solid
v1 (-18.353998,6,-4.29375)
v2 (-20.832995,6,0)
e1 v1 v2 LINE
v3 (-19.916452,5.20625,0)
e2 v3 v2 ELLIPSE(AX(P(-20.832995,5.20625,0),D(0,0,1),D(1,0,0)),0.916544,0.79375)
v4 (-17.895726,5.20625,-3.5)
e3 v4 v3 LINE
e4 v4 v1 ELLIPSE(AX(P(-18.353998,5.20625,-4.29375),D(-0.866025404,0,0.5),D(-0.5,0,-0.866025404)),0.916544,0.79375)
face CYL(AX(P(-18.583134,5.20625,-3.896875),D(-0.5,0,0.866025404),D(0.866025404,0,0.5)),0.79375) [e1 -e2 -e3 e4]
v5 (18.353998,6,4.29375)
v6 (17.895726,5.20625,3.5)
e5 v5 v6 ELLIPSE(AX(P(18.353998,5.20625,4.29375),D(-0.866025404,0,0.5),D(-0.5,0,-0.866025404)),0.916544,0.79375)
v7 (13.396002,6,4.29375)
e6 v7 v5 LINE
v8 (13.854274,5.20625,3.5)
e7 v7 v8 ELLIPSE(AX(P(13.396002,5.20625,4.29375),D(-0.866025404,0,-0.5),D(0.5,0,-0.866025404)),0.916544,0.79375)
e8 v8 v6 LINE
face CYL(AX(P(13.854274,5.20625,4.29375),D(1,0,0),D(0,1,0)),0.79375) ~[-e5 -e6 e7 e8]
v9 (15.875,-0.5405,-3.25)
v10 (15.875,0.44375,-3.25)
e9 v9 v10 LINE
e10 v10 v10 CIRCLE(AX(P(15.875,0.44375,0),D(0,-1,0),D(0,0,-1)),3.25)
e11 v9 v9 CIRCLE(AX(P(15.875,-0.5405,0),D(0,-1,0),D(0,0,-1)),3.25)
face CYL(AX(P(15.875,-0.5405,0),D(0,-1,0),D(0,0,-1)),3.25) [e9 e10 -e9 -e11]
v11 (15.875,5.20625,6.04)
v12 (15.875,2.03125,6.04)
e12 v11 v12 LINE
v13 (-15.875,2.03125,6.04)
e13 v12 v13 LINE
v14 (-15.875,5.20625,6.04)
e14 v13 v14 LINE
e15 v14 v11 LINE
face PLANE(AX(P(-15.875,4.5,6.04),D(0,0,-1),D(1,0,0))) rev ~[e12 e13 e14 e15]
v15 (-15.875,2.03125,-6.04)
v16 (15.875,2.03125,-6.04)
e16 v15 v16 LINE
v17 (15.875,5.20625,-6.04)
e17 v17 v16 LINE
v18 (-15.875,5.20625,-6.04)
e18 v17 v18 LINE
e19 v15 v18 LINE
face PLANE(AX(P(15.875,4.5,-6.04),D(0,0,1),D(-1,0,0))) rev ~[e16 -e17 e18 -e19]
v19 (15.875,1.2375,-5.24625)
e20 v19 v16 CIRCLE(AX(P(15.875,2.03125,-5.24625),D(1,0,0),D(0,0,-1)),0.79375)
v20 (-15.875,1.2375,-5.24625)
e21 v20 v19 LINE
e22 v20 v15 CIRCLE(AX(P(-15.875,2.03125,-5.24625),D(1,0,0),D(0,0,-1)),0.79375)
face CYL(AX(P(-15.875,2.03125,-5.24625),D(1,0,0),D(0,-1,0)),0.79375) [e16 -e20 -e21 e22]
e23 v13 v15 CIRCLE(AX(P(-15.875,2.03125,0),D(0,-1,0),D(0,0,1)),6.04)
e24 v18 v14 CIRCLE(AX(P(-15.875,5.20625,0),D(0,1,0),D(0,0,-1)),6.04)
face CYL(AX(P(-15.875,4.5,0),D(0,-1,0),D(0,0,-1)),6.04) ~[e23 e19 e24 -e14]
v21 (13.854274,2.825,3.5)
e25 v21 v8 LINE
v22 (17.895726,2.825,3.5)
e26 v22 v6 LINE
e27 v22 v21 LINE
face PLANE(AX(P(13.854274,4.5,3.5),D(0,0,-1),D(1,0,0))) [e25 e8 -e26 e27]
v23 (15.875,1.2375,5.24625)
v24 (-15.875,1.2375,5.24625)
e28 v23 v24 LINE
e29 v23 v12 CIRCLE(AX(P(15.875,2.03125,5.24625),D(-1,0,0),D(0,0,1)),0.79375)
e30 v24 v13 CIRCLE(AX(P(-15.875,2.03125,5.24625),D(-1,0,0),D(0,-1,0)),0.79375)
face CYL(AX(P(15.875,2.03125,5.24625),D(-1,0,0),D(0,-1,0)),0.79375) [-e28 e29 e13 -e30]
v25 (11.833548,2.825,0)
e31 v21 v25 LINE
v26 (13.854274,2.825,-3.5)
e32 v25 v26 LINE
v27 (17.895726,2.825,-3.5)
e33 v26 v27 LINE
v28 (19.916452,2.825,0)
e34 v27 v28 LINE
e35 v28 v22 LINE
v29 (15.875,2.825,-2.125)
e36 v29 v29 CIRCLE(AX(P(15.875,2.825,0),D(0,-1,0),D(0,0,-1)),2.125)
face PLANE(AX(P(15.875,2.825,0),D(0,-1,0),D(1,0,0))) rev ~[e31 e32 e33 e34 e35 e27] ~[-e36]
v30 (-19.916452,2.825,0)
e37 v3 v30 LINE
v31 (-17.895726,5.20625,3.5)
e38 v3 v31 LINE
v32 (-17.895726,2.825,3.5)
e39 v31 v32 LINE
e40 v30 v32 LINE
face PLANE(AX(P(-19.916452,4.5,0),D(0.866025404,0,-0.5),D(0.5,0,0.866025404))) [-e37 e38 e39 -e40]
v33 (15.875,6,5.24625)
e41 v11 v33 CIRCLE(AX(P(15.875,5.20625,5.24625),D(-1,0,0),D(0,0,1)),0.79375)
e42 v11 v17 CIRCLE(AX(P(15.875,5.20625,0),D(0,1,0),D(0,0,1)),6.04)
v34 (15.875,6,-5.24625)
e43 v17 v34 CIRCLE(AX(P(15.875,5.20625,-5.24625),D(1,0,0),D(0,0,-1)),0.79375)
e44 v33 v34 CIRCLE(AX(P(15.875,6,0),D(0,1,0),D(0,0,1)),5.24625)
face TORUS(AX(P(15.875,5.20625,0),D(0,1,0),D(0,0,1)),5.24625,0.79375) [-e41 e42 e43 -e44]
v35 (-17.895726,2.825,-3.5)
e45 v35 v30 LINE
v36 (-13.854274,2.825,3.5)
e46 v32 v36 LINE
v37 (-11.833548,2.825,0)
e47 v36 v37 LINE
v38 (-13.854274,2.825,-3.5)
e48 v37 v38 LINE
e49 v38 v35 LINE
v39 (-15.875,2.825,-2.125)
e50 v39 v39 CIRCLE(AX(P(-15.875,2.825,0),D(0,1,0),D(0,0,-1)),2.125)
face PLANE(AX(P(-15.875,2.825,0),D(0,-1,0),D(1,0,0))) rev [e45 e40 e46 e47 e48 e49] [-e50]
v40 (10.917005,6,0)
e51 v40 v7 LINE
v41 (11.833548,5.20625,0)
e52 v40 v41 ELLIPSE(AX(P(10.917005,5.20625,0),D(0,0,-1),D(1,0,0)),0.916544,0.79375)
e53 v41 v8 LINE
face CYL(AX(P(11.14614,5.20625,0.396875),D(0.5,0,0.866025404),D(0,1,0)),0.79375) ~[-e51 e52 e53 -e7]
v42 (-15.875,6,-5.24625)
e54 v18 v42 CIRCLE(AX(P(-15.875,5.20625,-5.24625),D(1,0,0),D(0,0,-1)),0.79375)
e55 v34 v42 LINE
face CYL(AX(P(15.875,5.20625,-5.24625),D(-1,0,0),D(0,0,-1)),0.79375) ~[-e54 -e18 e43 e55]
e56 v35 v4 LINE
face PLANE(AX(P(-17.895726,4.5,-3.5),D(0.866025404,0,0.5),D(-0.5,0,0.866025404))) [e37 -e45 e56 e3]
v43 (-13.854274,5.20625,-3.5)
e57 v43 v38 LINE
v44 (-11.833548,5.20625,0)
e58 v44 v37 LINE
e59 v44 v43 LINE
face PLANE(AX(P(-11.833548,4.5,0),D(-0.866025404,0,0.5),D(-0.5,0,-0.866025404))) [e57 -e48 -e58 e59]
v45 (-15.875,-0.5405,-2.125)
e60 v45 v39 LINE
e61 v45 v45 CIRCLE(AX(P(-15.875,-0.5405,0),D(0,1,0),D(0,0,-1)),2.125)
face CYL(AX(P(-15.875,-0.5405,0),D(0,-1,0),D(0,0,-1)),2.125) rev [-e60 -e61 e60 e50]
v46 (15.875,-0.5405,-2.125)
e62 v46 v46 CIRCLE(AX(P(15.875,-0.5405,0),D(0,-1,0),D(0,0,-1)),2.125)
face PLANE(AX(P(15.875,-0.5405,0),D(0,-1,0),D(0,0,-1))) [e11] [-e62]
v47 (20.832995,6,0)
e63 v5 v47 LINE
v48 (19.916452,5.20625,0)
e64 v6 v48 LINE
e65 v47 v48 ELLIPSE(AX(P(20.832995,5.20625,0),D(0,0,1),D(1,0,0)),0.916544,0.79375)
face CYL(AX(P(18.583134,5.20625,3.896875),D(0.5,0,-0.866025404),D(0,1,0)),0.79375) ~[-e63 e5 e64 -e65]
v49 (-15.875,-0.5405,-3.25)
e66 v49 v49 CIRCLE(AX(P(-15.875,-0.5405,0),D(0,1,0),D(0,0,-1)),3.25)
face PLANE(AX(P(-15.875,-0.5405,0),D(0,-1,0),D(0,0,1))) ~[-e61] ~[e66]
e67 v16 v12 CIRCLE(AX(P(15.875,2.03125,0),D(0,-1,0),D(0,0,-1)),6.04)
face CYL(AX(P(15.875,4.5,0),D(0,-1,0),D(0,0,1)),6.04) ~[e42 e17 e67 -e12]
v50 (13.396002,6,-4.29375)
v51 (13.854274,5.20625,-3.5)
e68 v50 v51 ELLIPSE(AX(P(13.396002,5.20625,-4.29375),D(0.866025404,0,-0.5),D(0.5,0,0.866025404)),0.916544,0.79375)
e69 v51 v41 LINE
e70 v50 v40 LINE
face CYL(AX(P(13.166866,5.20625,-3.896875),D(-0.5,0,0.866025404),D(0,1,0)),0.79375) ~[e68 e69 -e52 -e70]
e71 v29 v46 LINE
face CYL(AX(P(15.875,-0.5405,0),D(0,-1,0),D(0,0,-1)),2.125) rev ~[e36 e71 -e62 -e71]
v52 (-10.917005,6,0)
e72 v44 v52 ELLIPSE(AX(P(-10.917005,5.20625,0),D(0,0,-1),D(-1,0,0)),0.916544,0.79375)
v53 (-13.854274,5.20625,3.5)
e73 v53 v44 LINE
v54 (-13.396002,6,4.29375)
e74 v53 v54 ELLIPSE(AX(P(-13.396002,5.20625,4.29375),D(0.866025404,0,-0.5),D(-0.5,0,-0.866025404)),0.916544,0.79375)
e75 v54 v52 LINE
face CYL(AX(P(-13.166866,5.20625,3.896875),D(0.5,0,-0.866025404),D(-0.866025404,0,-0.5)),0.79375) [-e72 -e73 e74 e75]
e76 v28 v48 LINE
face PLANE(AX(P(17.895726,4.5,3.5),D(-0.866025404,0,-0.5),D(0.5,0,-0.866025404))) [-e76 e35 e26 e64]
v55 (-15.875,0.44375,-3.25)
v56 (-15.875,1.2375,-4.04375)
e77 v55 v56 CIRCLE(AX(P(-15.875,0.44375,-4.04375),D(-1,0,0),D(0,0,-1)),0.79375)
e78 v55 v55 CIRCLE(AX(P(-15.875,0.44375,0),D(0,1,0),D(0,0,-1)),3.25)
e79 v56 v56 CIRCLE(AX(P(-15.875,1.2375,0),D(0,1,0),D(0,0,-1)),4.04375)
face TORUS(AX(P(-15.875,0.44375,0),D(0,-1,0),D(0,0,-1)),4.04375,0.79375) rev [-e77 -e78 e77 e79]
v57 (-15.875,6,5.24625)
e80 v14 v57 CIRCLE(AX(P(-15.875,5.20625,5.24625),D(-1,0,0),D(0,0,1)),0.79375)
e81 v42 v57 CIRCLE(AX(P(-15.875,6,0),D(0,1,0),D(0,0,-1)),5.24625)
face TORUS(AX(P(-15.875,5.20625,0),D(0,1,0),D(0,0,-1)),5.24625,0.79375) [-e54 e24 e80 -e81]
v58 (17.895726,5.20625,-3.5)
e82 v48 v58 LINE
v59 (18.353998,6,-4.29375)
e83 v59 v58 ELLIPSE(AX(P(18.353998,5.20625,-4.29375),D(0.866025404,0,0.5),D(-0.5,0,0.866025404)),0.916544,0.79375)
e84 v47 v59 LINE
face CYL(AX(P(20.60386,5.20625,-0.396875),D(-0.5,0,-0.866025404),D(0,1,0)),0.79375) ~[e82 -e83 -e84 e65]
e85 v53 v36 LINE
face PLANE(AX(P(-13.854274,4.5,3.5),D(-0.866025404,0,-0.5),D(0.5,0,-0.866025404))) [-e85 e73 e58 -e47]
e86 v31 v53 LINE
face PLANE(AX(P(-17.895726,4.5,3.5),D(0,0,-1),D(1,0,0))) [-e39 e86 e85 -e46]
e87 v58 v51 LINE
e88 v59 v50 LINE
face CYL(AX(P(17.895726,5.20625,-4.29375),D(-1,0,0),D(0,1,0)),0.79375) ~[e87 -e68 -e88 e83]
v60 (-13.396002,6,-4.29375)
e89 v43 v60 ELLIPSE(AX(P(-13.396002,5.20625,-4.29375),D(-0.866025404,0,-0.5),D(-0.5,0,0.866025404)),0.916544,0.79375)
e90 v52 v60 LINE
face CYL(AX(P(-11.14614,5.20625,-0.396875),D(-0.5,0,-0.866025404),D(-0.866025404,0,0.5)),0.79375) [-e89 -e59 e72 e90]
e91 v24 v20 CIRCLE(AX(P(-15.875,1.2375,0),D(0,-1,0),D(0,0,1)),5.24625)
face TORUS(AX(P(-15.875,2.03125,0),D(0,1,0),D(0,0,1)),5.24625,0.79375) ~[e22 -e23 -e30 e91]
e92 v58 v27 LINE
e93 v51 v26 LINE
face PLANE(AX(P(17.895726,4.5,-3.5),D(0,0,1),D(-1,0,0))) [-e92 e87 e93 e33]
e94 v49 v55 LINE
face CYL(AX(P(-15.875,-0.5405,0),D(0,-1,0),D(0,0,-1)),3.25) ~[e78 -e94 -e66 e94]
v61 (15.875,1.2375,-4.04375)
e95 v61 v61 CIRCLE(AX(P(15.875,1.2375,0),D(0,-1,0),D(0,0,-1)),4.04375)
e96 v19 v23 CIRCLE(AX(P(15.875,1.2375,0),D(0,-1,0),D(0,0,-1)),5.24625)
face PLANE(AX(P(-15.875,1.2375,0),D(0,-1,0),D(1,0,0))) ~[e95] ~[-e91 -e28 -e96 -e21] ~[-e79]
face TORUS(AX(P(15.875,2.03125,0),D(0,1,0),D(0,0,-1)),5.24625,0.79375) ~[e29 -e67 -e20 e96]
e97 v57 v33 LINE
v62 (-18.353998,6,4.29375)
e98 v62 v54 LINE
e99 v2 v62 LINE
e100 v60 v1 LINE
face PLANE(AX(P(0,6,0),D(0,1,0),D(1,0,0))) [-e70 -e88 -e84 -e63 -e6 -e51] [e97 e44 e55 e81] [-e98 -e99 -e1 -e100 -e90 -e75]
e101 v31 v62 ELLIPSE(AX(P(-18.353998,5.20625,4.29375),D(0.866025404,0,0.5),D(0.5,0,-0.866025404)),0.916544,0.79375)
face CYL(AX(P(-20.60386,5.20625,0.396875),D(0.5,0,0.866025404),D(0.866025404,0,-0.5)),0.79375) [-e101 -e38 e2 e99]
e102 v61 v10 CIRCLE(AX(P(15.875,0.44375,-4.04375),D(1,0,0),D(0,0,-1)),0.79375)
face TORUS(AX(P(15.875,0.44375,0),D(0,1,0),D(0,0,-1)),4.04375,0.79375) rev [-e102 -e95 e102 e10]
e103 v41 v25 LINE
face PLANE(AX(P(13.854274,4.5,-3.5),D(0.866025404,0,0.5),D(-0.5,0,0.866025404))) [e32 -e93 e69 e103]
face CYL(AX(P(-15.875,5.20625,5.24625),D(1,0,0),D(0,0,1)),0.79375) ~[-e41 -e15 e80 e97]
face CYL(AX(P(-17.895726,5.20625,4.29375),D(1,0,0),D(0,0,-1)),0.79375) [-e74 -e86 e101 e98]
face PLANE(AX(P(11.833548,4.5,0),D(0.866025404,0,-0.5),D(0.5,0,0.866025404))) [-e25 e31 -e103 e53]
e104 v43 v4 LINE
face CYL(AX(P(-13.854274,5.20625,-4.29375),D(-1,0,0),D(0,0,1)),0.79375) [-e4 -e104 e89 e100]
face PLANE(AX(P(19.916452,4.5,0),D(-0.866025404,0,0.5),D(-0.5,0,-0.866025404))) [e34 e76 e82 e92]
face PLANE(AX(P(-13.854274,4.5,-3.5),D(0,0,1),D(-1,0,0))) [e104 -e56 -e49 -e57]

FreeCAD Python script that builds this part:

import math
import FreeCAD as App
import Part
import Sketcher

V = App.Vector
Q = App.Units.Quantity


def edges_at(feature, points):
    """Names of the edges that pass closest to the given points."""
    edges = feature.Shape.Edges
    near = lambda p: min(range(len(edges)), key=lambda i: edges[i].distToShape(Part.Vertex(*p))[0])
    return sorted({f"Edge{near(p) + 1}" for p in points})


def add_polygon(sketch, points):
    """Adds a closed chain of lines whose ends are joined by coincident constraints."""
    first, n = sketch.GeometryCount, len(points)
    for a, b in zip(points, points[1:] + points[:1]):
        sketch.addGeometry(Part.LineSegment(App.Vector(*a, 0), App.Vector(*b, 0)), False)
    for i in range(n):
        sketch.addConstraint(Sketcher.Constraint("Coincident", first + i, 2, first + (i + 1) % n, 1))

doc = App.newDocument("Part")
body = doc.addObject("PartDesign::Body", "Body")

# Sketch on XZ plane
sketch1 = body.newObject("Sketcher::SketchObject", "Sketch")
sketch1.AttachmentSupport = (doc.getObject("XZ_Plane"), [""])
sketch1.MapMode = "FlatFace"
sketch1.addGeometry(Part.LineSegment(V(15.9, -6, 0), V(-15.9, -6, 0)), False)  # 0
sketch1.addGeometry(Part.ArcOfCircle(Part.Circle(V(-15.9, 0, 0), V(0, 0, 1), 6), math.radians(90), math.radians(270)), False)  # 1
sketch1.addGeometry(Part.LineSegment(V(-15.9, 6, 0), V(15.9, 6, 0)), False)  # 2
sketch1.addGeometry(Part.ArcOfCircle(Part.Circle(V(15.9, 0, 0), V(0, 0, 1), 6), math.radians(-90), math.radians(90)), False)  # 3
add_polygon(sketch1, [(17.9, -3.5), (19.9, 0), (17.9, 3.5), (13.9, 3.5), (11.8, 0), (13.9, -3.5)])  # lines 4-9
add_polygon(sketch1, [(-13.9, -3.5), (-11.8, 0), (-13.9, 3.5), (-17.9, 3.5), (-19.9, 0), (-17.9, -3.5)])  # lines 10-15
sketch1.addConstraint([
    Sketcher.Constraint("Tangent", 0, 2, 1, 2),
    Sketcher.Constraint("Tangent", 1, 1, 2, 1),
    Sketcher.Constraint("Tangent", 2, 2, 3, 2),
    Sketcher.Constraint("Tangent", 3, 1, 0, 1),
    Sketcher.Constraint("Horizontal", 0),
    Sketcher.Constraint("Horizontal", 2),
    Sketcher.Constraint("Horizontal", 6),
    Sketcher.Constraint("Horizontal", 9),
    Sketcher.Constraint("Horizontal", 12),
    Sketcher.Constraint("Horizontal", 15),
    Sketcher.Constraint("Symmetric", 1, 3, 3, 3, -1, 1),
    Sketcher.Constraint("Symmetric", 7, 2, 10, 2, -1, 1),
    Sketcher.Constraint("Symmetric", 8, 2, 11, 2, -1, 1),
    Sketcher.Constraint("Symmetric", 4, 2, 13, 2, -1, 1),
    Sketcher.Constraint("Symmetric", 5, 2, 14, 2, -1, 1),
    Sketcher.Constraint("Symmetric", 6, 2, 11, 2, -2),
    Sketcher.Constraint("PointOnObject", 4, 2, -1),
    Sketcher.Constraint("PointOnObject", 7, 2, -1),
    Sketcher.Constraint("Parallel", 4, 7),
    Sketcher.Constraint("Parallel", 5, 8),
    Sketcher.Constraint("Parallel", 7, 10),
    Sketcher.Constraint("Parallel", 10, 13),
    Sketcher.Constraint("Angle", 4, Q("60 deg")),
    Sketcher.Constraint("DistanceX", 0, 2, 0, 1, Q("1.25 in")),
    Sketcher.Constraint("DistanceY", 5, 2, 2, 2, Q("0.1 in")),
    Sketcher.Constraint("Radius", 1, Q("6.04 mm")),
    Sketcher.Constraint("DistanceX", 6, 2, 6, 1, Q("4.041452 mm")),
    Sketcher.Constraint("DistanceX", -1, 1, 4, 2, Q("19.916452 mm")),
])
pad1 = body.newObject("PartDesign::Pad", "Pad")
pad1.Profile = sketch1
pad1.Length = 4.5
pad1.Reversed = True

# Sketch on XZ plane
sketch2 = body.newObject("Sketcher::SketchObject", "Sketch001")
sketch2.AttachmentSupport = (doc.getObject("XZ_Plane"), [""])
sketch2.MapMode = "FlatFace"
sketch2.AttachmentOffset = App.Placement(V(0, 0, -4.5), App.Rotation())
sketch2.addGeometry(Part.LineSegment(V(15.9, -6, 0), V(-15.9, -6, 0)), False)  # 0
sketch2.addGeometry(Part.ArcOfCircle(Part.Circle(V(-15.9, 0, 0), V(0, 0, 1), 6), math.radians(90), math.radians(270)), False)  # 1
sketch2.addGeometry(Part.LineSegment(V(-15.9, 6, 0), V(15.9, 6, 0)), False)  # 2
sketch2.addGeometry(Part.ArcOfCircle(Part.Circle(V(15.9, 0, 0), V(0, 0, 1), 6), math.radians(-90), math.radians(90)), False)  # 3
add_polygon(sketch2, [(-19.9, 0), (-17.9, -3.5), (-13.9, -3.5), (-11.8, 0), (-13.9, 3.5), (-17.9, 3.5)])  # lines 4-9
add_polygon(sketch2, [(17.9, -3.5), (19.9, 0), (17.9, 3.5), (13.9, 3.5), (11.8, 0), (13.9, -3.5)])  # lines 10-15
sketch2.addConstraint([
    Sketcher.Constraint("Tangent", 0, 2, 1, 2),
    Sketcher.Constraint("Tangent", 1, 1, 2, 1),
    Sketcher.Constraint("Tangent", 2, 2, 3, 2),
    Sketcher.Constraint("Tangent", 3, 1, 0, 1),
    Sketcher.Constraint("Horizontal", 0),
    Sketcher.Constraint("Horizontal", 2),
    Sketcher.Constraint("Horizontal", 5),
    Sketcher.Constraint("Horizontal", 8),
    Sketcher.Constraint("Horizontal", 12),
    Sketcher.Constraint("Horizontal", 15),
    Sketcher.Constraint("Symmetric", 1, 3, 3, 3, -1, 1),
    Sketcher.Constraint("Symmetric", 9, 2, 10, 2, -1, 1),
    Sketcher.Constraint("Symmetric", 4, 2, 11, 2, -1, 1),
    Sketcher.Constraint("Symmetric", 6, 2, 13, 2, -1, 1),
    Sketcher.Constraint("Symmetric", 7, 2, 14, 2, -1, 1),
    Sketcher.Constraint("Symmetric", 8, 2, 11, 2, -2),
    Sketcher.Constraint("PointOnObject", 6, 2, -1),
    Sketcher.Constraint("PointOnObject", 9, 2, -1),
    Sketcher.Constraint("Parallel", 4, 7),
    Sketcher.Constraint("Parallel", 6, 9),
    Sketcher.Constraint("Parallel", 9, 10),
    Sketcher.Constraint("Parallel", 10, 13),
    Sketcher.Constraint("Angle", 4, Q("-60 deg")),
    Sketcher.Constraint("DistanceX", 0, 2, 0, 1, Q("1.25 in")),
    Sketcher.Constraint("DistanceY", 0, 2, 4, 2, Q("0.1 in")),
    Sketcher.Constraint("Radius", 1, Q("6.04 mm")),
    Sketcher.Constraint("DistanceX", 6, 2, 10, 2, Q("1.25 in")),
    Sketcher.Constraint("DistanceX", 5, 1, 5, 2, Q("4.041452 mm")),
])
pad2 = body.newObject("PartDesign::Pad", "Pad001")
pad2.Profile = sketch2
pad2.Length = 1.5
pad2.Reversed = True

# Sketch on XZ plane
sketch3 = body.newObject("Sketcher::SketchObject", "Sketch002")
sketch3.AttachmentSupport = (doc.getObject("XZ_Plane"), [""])
sketch3.MapMode = "FlatFace"
sketch3.addGeometry([
    Part.LineSegment(V(16, 6, 0), V(-16, 6, 0)),
    Part.ArcOfCircle(Part.Circle(V(-16, 0, 0), V(0, 0, 1), 6), math.radians(90), math.radians(270)),
    Part.LineSegment(V(-16, -6, 0), V(16, -6, 0)),
    Part.ArcOfCircle(Part.Circle(V(16, 0, 0), V(0, 0, 1), 6), math.radians(-90), math.radians(90)),
], False)
sketch3.addConstraint([
    Sketcher.Constraint("Tangent", 0, 2, 1, 1),
    Sketcher.Constraint("Tangent", 1, 2, 2, 1),
    Sketcher.Constraint("Tangent", 2, 2, 3, 1),
    Sketcher.Constraint("Tangent", 3, 2, 0, 1),
    Sketcher.Constraint("Horizontal", 0),
    Sketcher.Constraint("Horizontal", 2),
    Sketcher.Constraint("Symmetric", 1, 3, 3, 3, -1, 1),
    Sketcher.Constraint("DistanceX", 0, 2, 0, 1, Q("1.25 in")),
    Sketcher.Constraint("Radius", 1, Q("6.04 mm")),
])
pocket1 = body.newObject("PartDesign::Pocket", "Pocket")
pocket1.Profile = sketch3
pocket1.Length = 1.2375

# Sketch on XZ plane
sketch4 = body.newObject("Sketcher::SketchObject", "Sketch003")
sketch4.AttachmentSupport = (doc.getObject("XZ_Plane"), [""])
sketch4.MapMode = "FlatFace"
sketch4.AttachmentOffset = App.Placement(V(0, 0, -1.2375), App.Rotation())
add_polygon(sketch4, [(13.9, 3.5), (11.8, 0), (13.9, -3.5), (17.9, -3.5), (19.9, 0), (17.9, 3.5)])  # lines 0-5
sketch4.addGeometry(Part.Circle(V(15.9, 0, 0), V(0, 0, 1), 2.1), False)  # 6
sketch4.addConstraint([
    Sketcher.Constraint("Horizontal", 2),
    Sketcher.Constraint("Horizontal", 5),
    Sketcher.Constraint("Symmetric", 2, 2, 4, 2, -1),
    Sketcher.Constraint("PointOnObject", 6, 3, -1),
    Sketcher.Constraint("PointOnObject", 0, 2, -1),
    Sketcher.Constraint("PointOnObject", 3, 2, -1),
    Sketcher.Constraint("Parallel", 0, 3),
    Sketcher.Constraint("Parallel", 1, 4),
    Sketcher.Constraint("Angle", 0, Q("-120 deg")),
    Sketcher.Constraint("Diameter", 6, Q("4.25 mm")),
    Sketcher.Constraint("DistanceX", -1, 1, 6, 3, Q("0.625 in")),
    Sketcher.Constraint("DistanceX", 2, 1, 2, 2, Q("4.041452 mm")),
    Sketcher.Constraint("DistanceY", 1, 2, -1, 1, Q("3.5 mm")),
    Sketcher.Constraint("DistanceX", -1, 1, 0, 2, Q("11.833548 mm")),
])
pad3 = body.newObject("PartDesign::Pad", "Pad002")
pad3.Profile = sketch4
pad3.Length = Q("0.0625 in")
pad3.Reversed = True

# Sketch on XZ plane
sketch5 = body.newObject("Sketcher::SketchObject", "Sketch004")
sketch5.AttachmentSupport = (doc.getObject("XZ_Plane"), [""])
sketch5.MapMode = "FlatFace"
sketch5.AttachmentOffset = App.Placement(V(0, 0, 0.5405), App.Rotation())
sketch5.addGeometry([
    Part.Circle(V(15.9, 0, 0), V(0, 0, 1), 3.2),
    Part.Circle(V(15.9, 0, 0), V(0, 0, 1), 2.1),
], False)
sketch5.addConstraint([
    Sketcher.Constraint("Coincident", 1, 3, 0, 3),
    Sketcher.Constraint("PointOnObject", 0, 3, -1),
    Sketcher.Constraint("Diameter", 0, Q("6.5 mm")),
    Sketcher.Constraint("Diameter", 1, Q("4.25 mm")),
    Sketcher.Constraint("DistanceX", -1, 1, 0, 3, Q("0.625 in")),
])
pad4 = body.newObject("PartDesign::Pad", "Pad003")
pad4.Profile = sketch5
pad4.Length = Q("0.07 in")
pad4.Reversed = True
doc.recompute()

mirrored = body.newObject("PartDesign::Mirrored", "Mirrored")
mirrored.Originals = [pad3, pad4]
mirrored.MirrorPlane = (doc.getObject("YZ_Plane"), [""])
body.Tip = mirrored
doc.recompute()

fillet = body.newObject("PartDesign::Fillet", "Fillet")
fillet.Base = (mirrored, edges_at(mirrored, [
    (21.915, 1.238, 0),
    (0, 1.238, -6.04),
    (-21.915, 1.238, 0),
    (0, 1.238, 6.04),
    (15.875, 1.238, 3.25),
    (-15.875, 1.238, 3.25),
]))
fillet.Radius = Q("0.03125 in")
doc.recompute()

fillet2 = body.newObject("PartDesign::Fillet", "Fillet001")
fillet2.Base = (fillet, edges_at(fillet, [
    (21.915, 6, 0),
    (0, 6, -6.04),
    (-21.915, 6, 0),
    (0, 6, 6.04),
    (18.906, 6, 1.75),
    (15.875, 6, 3.5),
    (12.844, 6, 1.75),
    (12.844, 6, -1.75),
    (15.875, 6, -3.5),
    (18.906, 6, -1.75),
    (-15.875, 6, -3.5),
    (-12.844, 6, -1.75),
    (-12.844, 6, 1.75),
    (-15.875, 6, 3.5),
    (-18.906, 6, 1.75),
    (-18.906, 6, -1.75),
]))
fillet2.Radius = Q("0.03125 in")

doc.recompute()
